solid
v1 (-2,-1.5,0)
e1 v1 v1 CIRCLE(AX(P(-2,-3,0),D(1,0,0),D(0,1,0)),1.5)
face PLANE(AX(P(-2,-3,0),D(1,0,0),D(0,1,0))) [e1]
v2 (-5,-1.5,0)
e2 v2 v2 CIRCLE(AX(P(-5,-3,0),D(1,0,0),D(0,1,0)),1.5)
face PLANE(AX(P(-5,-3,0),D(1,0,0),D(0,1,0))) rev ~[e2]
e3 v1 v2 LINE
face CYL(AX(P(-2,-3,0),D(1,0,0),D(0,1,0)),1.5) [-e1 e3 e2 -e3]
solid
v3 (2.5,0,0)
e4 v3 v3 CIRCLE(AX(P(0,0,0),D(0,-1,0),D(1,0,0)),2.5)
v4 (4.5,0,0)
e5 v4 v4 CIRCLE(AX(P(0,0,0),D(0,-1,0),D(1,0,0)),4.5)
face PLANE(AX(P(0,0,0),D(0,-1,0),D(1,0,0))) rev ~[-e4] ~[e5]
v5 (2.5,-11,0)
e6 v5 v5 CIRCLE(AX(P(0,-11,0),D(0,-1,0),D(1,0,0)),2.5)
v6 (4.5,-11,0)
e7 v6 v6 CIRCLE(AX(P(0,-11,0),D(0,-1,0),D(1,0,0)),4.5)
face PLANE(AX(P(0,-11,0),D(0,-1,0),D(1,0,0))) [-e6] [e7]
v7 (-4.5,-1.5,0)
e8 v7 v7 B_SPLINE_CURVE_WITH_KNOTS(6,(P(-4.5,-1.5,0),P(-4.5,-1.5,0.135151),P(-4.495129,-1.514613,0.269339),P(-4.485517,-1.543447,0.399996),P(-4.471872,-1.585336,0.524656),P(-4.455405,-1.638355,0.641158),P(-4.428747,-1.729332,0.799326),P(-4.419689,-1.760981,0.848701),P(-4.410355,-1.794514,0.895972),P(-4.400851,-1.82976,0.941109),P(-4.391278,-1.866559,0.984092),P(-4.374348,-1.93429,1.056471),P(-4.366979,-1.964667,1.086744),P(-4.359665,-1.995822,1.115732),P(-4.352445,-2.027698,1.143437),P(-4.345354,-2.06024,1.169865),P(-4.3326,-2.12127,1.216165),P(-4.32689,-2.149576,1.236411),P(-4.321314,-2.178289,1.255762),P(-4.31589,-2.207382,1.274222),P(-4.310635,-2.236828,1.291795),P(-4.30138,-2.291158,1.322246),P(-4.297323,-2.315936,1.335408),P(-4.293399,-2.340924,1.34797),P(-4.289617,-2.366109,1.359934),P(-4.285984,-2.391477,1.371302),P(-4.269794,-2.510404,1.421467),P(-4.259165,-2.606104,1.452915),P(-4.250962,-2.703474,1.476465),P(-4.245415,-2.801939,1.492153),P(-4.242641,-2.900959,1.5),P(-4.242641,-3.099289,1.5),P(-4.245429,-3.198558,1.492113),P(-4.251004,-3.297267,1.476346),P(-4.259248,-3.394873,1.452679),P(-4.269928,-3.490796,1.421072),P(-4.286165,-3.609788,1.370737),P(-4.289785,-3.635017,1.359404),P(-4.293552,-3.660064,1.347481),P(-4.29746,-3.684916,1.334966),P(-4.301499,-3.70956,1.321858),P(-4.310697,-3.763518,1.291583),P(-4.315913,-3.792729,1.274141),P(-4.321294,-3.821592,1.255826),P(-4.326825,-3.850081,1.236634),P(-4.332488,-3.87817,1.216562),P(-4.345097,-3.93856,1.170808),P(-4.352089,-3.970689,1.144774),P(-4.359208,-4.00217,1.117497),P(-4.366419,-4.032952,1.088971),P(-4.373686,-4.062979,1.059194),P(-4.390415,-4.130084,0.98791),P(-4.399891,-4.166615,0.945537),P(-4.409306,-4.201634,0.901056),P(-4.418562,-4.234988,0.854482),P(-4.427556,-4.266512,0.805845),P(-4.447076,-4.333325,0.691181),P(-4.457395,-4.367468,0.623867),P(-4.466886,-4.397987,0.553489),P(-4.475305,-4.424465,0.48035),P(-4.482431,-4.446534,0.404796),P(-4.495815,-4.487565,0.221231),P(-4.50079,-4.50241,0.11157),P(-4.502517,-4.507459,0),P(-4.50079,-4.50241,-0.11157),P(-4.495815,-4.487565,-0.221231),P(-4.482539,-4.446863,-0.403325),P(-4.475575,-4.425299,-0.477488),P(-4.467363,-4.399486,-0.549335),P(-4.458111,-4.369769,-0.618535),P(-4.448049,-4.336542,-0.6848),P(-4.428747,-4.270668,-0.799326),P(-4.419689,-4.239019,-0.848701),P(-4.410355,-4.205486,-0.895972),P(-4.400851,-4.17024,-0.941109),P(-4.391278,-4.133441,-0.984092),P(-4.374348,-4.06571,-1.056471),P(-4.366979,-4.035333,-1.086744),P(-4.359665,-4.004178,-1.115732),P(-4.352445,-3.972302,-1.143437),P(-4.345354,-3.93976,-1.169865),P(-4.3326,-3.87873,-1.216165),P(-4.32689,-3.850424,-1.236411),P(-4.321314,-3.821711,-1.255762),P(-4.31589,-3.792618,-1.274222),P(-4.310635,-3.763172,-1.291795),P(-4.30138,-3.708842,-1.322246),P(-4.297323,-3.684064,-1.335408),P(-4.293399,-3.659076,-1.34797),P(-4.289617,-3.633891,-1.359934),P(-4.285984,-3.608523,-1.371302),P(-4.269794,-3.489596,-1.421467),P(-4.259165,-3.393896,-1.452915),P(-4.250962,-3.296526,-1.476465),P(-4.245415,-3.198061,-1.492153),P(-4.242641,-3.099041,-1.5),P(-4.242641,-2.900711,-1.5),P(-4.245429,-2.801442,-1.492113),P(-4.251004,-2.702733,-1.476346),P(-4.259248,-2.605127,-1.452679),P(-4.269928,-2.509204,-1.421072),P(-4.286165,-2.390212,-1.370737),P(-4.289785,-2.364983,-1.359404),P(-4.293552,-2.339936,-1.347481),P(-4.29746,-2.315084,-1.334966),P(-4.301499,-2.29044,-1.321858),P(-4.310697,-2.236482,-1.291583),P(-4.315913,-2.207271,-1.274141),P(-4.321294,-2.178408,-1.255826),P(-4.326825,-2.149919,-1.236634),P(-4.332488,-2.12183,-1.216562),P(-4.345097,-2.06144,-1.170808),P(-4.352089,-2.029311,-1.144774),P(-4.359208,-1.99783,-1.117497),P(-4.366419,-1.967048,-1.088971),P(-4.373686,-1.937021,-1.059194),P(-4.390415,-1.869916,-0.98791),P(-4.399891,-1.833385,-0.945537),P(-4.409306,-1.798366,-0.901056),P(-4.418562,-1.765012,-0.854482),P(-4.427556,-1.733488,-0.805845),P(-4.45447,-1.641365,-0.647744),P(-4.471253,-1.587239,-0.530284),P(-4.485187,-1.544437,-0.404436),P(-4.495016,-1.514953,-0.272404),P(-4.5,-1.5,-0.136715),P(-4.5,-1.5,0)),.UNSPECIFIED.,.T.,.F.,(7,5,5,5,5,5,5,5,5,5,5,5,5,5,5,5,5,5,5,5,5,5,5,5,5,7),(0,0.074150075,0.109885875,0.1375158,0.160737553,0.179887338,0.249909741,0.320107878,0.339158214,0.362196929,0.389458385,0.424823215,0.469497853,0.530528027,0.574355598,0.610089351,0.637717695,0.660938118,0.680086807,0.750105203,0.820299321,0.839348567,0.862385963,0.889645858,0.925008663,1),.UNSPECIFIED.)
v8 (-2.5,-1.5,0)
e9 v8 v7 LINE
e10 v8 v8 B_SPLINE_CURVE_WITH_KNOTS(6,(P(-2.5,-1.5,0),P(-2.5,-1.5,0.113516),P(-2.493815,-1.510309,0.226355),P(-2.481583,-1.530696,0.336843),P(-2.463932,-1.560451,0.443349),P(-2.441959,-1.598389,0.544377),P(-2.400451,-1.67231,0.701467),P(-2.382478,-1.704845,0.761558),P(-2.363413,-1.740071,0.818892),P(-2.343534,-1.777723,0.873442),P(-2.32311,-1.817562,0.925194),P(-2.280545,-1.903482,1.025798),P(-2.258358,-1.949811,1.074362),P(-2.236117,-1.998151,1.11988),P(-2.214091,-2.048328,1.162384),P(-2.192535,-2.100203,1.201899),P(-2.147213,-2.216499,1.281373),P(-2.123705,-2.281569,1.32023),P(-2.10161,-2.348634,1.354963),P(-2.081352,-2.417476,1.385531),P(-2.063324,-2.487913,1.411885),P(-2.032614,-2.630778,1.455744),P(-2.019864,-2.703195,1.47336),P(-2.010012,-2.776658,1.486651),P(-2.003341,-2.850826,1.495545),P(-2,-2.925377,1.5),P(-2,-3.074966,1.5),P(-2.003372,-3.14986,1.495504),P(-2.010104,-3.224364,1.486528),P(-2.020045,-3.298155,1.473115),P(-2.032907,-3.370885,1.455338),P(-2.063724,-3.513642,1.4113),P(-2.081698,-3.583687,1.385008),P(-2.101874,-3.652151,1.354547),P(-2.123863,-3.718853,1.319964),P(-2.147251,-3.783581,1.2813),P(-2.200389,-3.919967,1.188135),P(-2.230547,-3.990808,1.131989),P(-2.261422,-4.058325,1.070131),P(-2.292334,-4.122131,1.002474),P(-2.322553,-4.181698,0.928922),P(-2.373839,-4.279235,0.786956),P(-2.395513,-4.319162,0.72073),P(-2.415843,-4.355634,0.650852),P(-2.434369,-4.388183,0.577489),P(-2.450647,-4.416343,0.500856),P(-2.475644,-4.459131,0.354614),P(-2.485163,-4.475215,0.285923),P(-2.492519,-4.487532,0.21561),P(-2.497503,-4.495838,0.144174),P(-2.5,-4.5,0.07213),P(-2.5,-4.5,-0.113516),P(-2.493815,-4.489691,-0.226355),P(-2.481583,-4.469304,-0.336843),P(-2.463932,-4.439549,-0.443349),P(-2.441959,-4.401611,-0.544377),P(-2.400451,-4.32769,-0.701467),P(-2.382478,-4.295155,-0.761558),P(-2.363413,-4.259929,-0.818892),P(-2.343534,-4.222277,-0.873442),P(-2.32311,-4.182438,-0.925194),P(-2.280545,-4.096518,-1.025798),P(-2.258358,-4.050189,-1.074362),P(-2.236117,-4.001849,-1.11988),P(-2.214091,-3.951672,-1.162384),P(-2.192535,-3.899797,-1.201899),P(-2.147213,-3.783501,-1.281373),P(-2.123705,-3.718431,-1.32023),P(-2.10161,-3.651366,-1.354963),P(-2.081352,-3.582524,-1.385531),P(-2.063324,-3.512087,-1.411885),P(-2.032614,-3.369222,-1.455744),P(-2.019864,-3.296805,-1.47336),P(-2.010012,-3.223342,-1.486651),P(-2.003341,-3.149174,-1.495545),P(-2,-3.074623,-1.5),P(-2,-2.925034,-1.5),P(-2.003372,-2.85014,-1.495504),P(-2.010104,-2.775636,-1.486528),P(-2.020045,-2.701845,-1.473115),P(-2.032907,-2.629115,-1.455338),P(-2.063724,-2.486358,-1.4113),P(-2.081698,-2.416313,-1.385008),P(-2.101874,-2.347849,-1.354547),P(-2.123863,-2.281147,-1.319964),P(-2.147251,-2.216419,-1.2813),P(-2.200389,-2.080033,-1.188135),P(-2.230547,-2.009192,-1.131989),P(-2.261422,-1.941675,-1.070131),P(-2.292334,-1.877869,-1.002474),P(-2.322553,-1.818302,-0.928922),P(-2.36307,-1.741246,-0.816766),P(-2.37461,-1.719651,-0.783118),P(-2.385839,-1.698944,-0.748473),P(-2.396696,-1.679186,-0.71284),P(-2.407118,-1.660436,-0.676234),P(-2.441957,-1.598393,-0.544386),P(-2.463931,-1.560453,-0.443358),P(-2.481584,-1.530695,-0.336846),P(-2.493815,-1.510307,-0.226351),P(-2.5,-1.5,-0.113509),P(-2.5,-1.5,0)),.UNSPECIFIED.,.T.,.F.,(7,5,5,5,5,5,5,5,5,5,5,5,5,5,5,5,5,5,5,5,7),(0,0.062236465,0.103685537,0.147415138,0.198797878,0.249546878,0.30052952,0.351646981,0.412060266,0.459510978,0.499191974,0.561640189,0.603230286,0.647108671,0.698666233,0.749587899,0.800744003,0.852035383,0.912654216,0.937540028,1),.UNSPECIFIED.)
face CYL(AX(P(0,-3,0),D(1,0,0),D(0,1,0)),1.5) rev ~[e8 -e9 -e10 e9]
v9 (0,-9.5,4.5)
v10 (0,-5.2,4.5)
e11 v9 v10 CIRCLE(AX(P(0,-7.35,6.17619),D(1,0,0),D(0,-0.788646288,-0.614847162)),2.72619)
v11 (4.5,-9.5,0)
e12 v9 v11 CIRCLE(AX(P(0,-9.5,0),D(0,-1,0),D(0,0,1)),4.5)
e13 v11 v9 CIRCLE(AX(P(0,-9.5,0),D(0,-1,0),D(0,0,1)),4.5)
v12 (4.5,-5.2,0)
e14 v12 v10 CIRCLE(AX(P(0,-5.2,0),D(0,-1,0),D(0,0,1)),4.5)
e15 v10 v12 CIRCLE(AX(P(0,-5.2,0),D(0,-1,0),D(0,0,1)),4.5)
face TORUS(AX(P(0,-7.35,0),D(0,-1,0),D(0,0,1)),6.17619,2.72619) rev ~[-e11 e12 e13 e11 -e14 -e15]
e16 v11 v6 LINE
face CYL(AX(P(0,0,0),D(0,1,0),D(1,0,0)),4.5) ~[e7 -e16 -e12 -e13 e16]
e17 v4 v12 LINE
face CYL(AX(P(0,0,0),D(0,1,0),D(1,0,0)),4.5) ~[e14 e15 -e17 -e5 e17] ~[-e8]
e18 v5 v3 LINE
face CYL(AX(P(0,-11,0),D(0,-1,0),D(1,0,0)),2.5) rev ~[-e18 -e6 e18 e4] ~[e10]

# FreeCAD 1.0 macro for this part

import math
import FreeCAD as App
import Part
import Sketcher
Q = App.Units.Quantity

doc = App.newDocument("Part")
body = doc.addObject("PartDesign::Body", "Body")

# Sketch on XZ plane
sketch1 = body.newObject("Sketcher::SketchObject", "Sketch")
sketch1.AttachmentSupport = (doc.getObject("XZ_Plane"), [""])
sketch1.MapMode = "FlatFace"
sketch1.addGeometry(Part.Circle(App.Vector(0, 0, 0), App.Vector(0, 0, 1), 4.5), False)
sketch1.addConstraint([
    Sketcher.Constraint("Coincident", 0, 3, -1, 1),
    Sketcher.Constraint("Diameter", 0, Q("9 mm")),
])
pad1 = body.newObject("PartDesign::Pad", "Pad")
pad1.Profile = sketch1
pad1.Length = 11

# Sketch on XZ plane
sketch2 = body.newObject("Sketcher::SketchObject", "Sketch001")
sketch2.AttachmentSupport = (doc.getObject("XZ_Plane"), [""])
sketch2.MapMode = "FlatFace"
sketch2.AttachmentOffset = App.Placement(App.Vector(0, 0, 11), App.Rotation())
sketch2.addGeometry(Part.Circle(App.Vector(0, 0, 0), App.Vector(0, 0, 1), 2.5), False)
sketch2.addConstraint([
    Sketcher.Constraint("Coincident", 0, 3, -1, 1),
    Sketcher.Constraint("Diameter", 0, Q("5 mm")),
])
pocket1 = body.newObject("PartDesign::Pocket", "Pocket")
pocket1.Profile = sketch2
pocket1.Type = "ThroughAll"

# Sketch on YZ plane
sketch3 = body.newObject("Sketcher::SketchObject", "Sketch002")
sketch3.AttachmentSupport = (doc.getObject("YZ_Plane"), [""])
sketch3.MapMode = "FlatFace"
sketch3.addGeometry([
    Part.LineSegment(App.Vector(-5.2, 4.5, 0), App.Vector(-9.5, 4.5, 0)),
    Part.ArcOfCircle(Part.Circle(App.Vector(-7.3, 6.2, 0), App.Vector(0, 0, 1), 2.7), math.radians(-142), math.radians(-38)),
], False)
sketch3.addConstraint([
    Sketcher.Constraint("Coincident", 0, 1, 1, 2),
    Sketcher.Constraint("Coincident", 1, 1, 0, 2),
    Sketcher.Constraint("Horizontal", 0),
    Sketcher.Constraint("DistanceX", 0, 2, 0, 1, Q("4.3 mm")),
    Sketcher.Constraint("DistanceX", 0, 1, -1, 1, Q("5.2 mm")),
    Sketcher.Constraint("DistanceY", -1, 1, 0, 1, Q("4.5 mm")),
    Sketcher.Constraint("Radius", 1, Q("2.72619 mm")),
])
groove = body.newObject("PartDesign::Groove", "Groove")
groove.Profile = sketch3
groove.ReferenceAxis = (sketch3, ["H_Axis"])
groove.Angle = 360

# Sketch on YZ plane
sketch4 = body.newObject("Sketcher::SketchObject", "Sketch003")
sketch4.AttachmentSupport = (doc.getObject("YZ_Plane"), [""])
sketch4.MapMode = "FlatFace"
sketch4.addGeometry(Part.Circle(App.Vector(-3, 0, 0), App.Vector(0, 0, 1), 1.5), False)
sketch4.addConstraint([
    Sketcher.Constraint("PointOnObject", 0, 3, -1),
    Sketcher.Constraint("Diameter", 0, Q("3 mm")),
    Sketcher.Constraint("DistanceX", 0, 3, -1, 1, Q("3 mm")),
])
pocket2 = body.newObject("PartDesign::Pocket", "Pocket001")
pocket2.Profile = sketch4
pocket2.Type = "ThroughAll"
body2 = doc.addObject("PartDesign::Body", "Body001")

# Sketch on YZ plane
sketch5 = body2.newObject("Sketcher::SketchObject", "Sketch004")
sketch5.AttachmentSupport = (doc.getObject("YZ_Plane001"), [""])
sketch5.MapMode = "FlatFace"
sketch5.AttachmentOffset = App.Placement(App.Vector(0, 0, -2), App.Rotation())
sketch5.addGeometry(Part.Circle(App.Vector(-3, 0, 0), App.Vector(0, 0, 1), 1.5), False)
sketch5.addConstraint([
    Sketcher.Constraint("PointOnObject", 0, 3, -1),
    Sketcher.Constraint("Diameter", 0, Q("3 mm")),
    Sketcher.Constraint("DistanceX", 0, 3, -1, 1, Q("3 mm")),
])
pad2 = body2.newObject("PartDesign::Pad", "Pad001")
pad2.Profile = sketch5
pad2.Length = 3
pad2.Reversed = True

doc.recompute()
